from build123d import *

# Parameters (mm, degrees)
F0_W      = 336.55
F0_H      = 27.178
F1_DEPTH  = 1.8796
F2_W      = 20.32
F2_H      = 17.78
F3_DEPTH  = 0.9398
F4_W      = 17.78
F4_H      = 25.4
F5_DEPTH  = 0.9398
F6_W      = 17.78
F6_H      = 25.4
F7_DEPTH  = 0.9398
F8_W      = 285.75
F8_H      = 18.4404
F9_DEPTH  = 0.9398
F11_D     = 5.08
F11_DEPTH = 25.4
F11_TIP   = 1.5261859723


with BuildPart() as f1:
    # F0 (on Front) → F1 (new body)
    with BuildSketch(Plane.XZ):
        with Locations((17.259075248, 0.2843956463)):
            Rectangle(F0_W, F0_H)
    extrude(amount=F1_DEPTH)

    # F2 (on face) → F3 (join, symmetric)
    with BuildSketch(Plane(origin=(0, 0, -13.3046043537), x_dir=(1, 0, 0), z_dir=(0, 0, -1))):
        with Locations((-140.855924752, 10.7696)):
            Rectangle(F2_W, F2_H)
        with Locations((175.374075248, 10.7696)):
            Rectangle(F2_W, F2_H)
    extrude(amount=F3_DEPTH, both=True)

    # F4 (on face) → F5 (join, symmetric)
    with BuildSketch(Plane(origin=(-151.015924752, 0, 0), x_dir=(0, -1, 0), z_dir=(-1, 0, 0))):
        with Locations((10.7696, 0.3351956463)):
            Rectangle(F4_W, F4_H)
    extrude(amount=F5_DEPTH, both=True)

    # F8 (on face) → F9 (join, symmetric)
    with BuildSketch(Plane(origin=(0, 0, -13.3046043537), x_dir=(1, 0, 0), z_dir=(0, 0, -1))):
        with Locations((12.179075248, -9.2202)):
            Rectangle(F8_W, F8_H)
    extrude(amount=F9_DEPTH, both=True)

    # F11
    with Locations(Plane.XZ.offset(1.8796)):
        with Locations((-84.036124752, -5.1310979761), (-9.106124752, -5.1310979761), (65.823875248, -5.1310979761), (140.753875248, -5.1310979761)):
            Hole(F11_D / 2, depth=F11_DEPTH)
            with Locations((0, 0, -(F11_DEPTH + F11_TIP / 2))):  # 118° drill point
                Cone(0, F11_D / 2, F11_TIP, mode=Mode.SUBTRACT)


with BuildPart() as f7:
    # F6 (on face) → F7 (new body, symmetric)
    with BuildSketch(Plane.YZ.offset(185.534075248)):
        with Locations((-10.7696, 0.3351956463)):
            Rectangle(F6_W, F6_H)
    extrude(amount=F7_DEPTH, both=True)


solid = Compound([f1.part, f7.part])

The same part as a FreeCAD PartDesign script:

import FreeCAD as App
import Part
import Sketcher
Q = App.Units.Quantity


def add_polygon(sketch, points):
    """Adds a closed chain of lines whose ends are joined by coincident constraints."""
    first, n = sketch.GeometryCount, len(points)
    for a, b in zip(points, points[1:] + points[:1]):
        sketch.addGeometry(Part.LineSegment(App.Vector(*a, 0), App.Vector(*b, 0)), False)
    for i in range(n):
        sketch.addConstraint(Sketcher.Constraint("Coincident", first + i, 2, first + (i + 1) % n, 1))

doc = App.newDocument("Part")
body = doc.addObject("PartDesign::Body", "Body")

sketch1 = body.newObject("Sketcher::SketchObject", "Sketch")
sketch1.AttachmentSupport = (doc.getObject("XZ_Plane"), [""])
sketch1.MapMode = "FlatFace"
add_polygon(sketch1, [(-151, 14), (-151, -13), (186, -13), (186, 14)])
sketch1.addConstraint(Sketcher.Constraint("Vertical", 0))
sketch1.addConstraint(Sketcher.Constraint("Horizontal", 1))
sketch1.addConstraint(Sketcher.Constraint("Vertical", 2))
sketch1.addConstraint(Sketcher.Constraint("Horizontal", 3))
sketch1.addConstraint(Sketcher.Constraint("DistanceX", 1, 1, 1, 2, Q("13.25 in")))
sketch1.addConstraint(Sketcher.Constraint("DistanceY", 0, 2, 0, 1, Q("1.07 in")))
sketch1.addConstraint(Sketcher.Constraint("DistanceX", 0, 2, -1, 1, Q("151.015925 mm")))
sketch1.addConstraint(Sketcher.Constraint("DistanceY", 0, 2, -1, 1, Q("13.304604 mm")))
pad1 = body.newObject("PartDesign::Pad", "Pad")
pad1.Profile = sketch1
pad1.Length = Q("0.074 in")

sketch2 = body.newObject("Sketcher::SketchObject", "Sketch001")
sketch2.AttachmentSupport = (doc.getObject("XY_Plane"), [""])
sketch2.MapMode = "FlatFace"
sketch2.AttachmentOffset = App.Placement(App.Vector(0, 0, -13.304604), App.Rotation())
add_polygon(sketch2, [(-151, -20), (-151, -2), (-131, -2), (-131, -20)])
add_polygon(sketch2, [(165, -20), (165, -2), (186, -2), (186, -20)])
sketch2.addConstraint(Sketcher.Constraint("Vertical", 0))
sketch2.addConstraint(Sketcher.Constraint("Horizontal", 1))
sketch2.addConstraint(Sketcher.Constraint("Vertical", 2))
sketch2.addConstraint(Sketcher.Constraint("Horizontal", 3))
sketch2.addConstraint(Sketcher.Constraint("Vertical", 4))
sketch2.addConstraint(Sketcher.Constraint("Horizontal", 5))
sketch2.addConstraint(Sketcher.Constraint("Vertical", 6))
sketch2.addConstraint(Sketcher.Constraint("Horizontal", 7))
sketch2.addConstraint(Sketcher.Constraint("Horizontal", 1, 2, 4, 2))
sketch2.addConstraint(Sketcher.Constraint("Horizontal", 3, 2, 6, 2))
sketch2.addConstraint(Sketcher.Constraint("Equal", 3, 5))
sketch2.addConstraint(Sketcher.Constraint("DistanceX", 1, 1, 1, 2, Q("0.8 in")))
sketch2.addConstraint(Sketcher.Constraint("DistanceY", 0, 1, 0, 2, Q("0.7 in")))
sketch2.addConstraint(Sketcher.Constraint("DistanceX", 1, 2, 4, 2, Q("11.65 in")))
sketch2.addConstraint(Sketcher.Constraint("DistanceY", 0, 2, -1, 1, Q("0.074 in")))
sketch2.addConstraint(Sketcher.Constraint("DistanceX", 0, 2, -1, 1, Q("151.015925 mm")))
pad2 = body.newObject("PartDesign::Pad", "Pad001")
pad2.Profile = sketch2
pad2.Length = Q("0.074 in")
pad2.Midplane = True

sketch3 = body.newObject("Sketcher::SketchObject", "Sketch002")
sketch3.AttachmentSupport = (doc.getObject("YZ_Plane"), [""])
sketch3.MapMode = "FlatFace"
sketch3.AttachmentOffset = App.Placement(App.Vector(0, 0, -151.015925), App.Rotation())
add_polygon(sketch3, [(-2, 13), (-2, -12), (-20, -12), (-20, 13)])
sketch3.addConstraint(Sketcher.Constraint("Vertical", 0))
sketch3.addConstraint(Sketcher.Constraint("Horizontal", 1))
sketch3.addConstraint(Sketcher.Constraint("Vertical", 2))
sketch3.addConstraint(Sketcher.Constraint("Horizontal", 3))
sketch3.addConstraint(Sketcher.Constraint("DistanceY", 0, 2, 0, 1, Q("1 in")))
sketch3.addConstraint(Sketcher.Constraint("DistanceX", 1, 2, 1, 1, Q("0.7 in")))
sketch3.addConstraint(Sketcher.Constraint("DistanceX", 0, 2, -1, 1, Q("0.074 in")))
sketch3.addConstraint(Sketcher.Constraint("DistanceY", 0, 2, -1, 1, Q("12.364804 mm")))
pad3 = body.newObject("PartDesign::Pad", "Pad002")
pad3.Profile = sketch3
pad3.Length = Q("0.074 in")
pad3.Midplane = True

sketch4 = body.newObject("Sketcher::SketchObject", "Sketch003")
sketch4.AttachmentSupport = (doc.getObject("XY_Plane"), [""])
sketch4.MapMode = "FlatFace"
sketch4.AttachmentOffset = App.Placement(App.Vector(0, 0, -13.304604), App.Rotation())
add_polygon(sketch4, [(-131, 0), (-131, 18), (155, 18), (155, 0)])
sketch4.addConstraint(Sketcher.Constraint("Vertical", 0))
sketch4.addConstraint(Sketcher.Constraint("Horizontal", 1))
sketch4.addConstraint(Sketcher.Constraint("Vertical", 2))
sketch4.addConstraint(Sketcher.Constraint("Horizontal", 3))
sketch4.addConstraint(Sketcher.Constraint("PointOnObject", 2, 2, -1))
sketch4.addConstraint(Sketcher.Constraint("DistanceX", 1, 1, 1, 2, Q("11.25 in")))
sketch4.addConstraint(Sketcher.Constraint("DistanceY", 0, 1, 0, 2, Q("0.726 in")))
sketch4.addConstraint(Sketcher.Constraint("DistanceX", 0, 2, -1, 1, Q("130.695925 mm")))
pad4 = body.newObject("PartDesign::Pad", "Pad003")
pad4.Profile = sketch4
pad4.Length = Q("0.074 in")
pad4.Midplane = True

sketch5 = body.newObject("Sketcher::SketchObject", "Sketch004")
sketch5.AttachmentSupport = (doc.getObject("XZ_Plane"), [""])
sketch5.MapMode = "FlatFace"
sketch5.AttachmentOffset = App.Placement(App.Vector(0, 0, 0.074 * 25.4), App.Rotation())
sketch5.addGeometry(Part.Circle(App.Vector(-84, -5.1, 0), App.Vector(0, 0, 1), 2.5), False)
sketch5.addGeometry(Part.Circle(App.Vector(-9.1, -5.1, 0), App.Vector(0, 0, 1), 2.5), False)
sketch5.addGeometry(Part.Circle(App.Vector(65.8, -5.1, 0), App.Vector(0, 0, 1), 2.5), False)
sketch5.addGeometry(Part.Circle(App.Vector(140.8, -5.1, 0), App.Vector(0, 0, 1), 2.5), False)
sketch5.addConstraint(Sketcher.Constraint("Equal", 0, 1))
sketch5.addConstraint(Sketcher.Constraint("Equal", 1, 2))
sketch5.addConstraint(Sketcher.Constraint("Equal", 2, 3))
sketch5.addConstraint(Sketcher.Constraint("Horizontal", 0, 3, 1, 3))
sketch5.addConstraint(Sketcher.Constraint("Horizontal", 1, 3, 2, 3))
sketch5.addConstraint(Sketcher.Constraint("Horizontal", 2, 3, 3, 3))
sketch5.addConstraint(Sketcher.Constraint("Diameter", 0, Q("0.2 in")))
sketch5.addConstraint(Sketcher.Constraint("DistanceX", 0, 3, 2, 3, Q("5.9 in")))
sketch5.addConstraint(Sketcher.Constraint("DistanceX", 1, 3, 3, 3, Q("5.9 in")))
sketch5.addConstraint(Sketcher.Constraint("DistanceX", 0, 3, 1, 3, Q("2.95 in")))
sketch5.addConstraint(Sketcher.Constraint("DistanceX", 0, 3, -1, 1, Q("84.036125 mm")))
sketch5.addConstraint(Sketcher.Constraint("DistanceY", 0, 3, -1, 1, Q("5.131098 mm")))
doc.recompute()
hole = body.newObject("PartDesign::Hole", "Hole")
hole.Profile = sketch5
hole.ThreadType = "None"
hole.Diameter = Q("0.2 in")
hole.DepthType = "Dimension"
hole.Depth = Q("1 in")
hole.DrillPoint = "Angled"
hole.DrillPointAngle = 118
body2 = doc.addObject("PartDesign::Body", "Body001")

sketch6 = body2.newObject("Sketcher::SketchObject", "Sketch005")
sketch6.AttachmentSupport = (doc.getObject("YZ_Plane001"), [""])
sketch6.MapMode = "FlatFace"
sketch6.AttachmentOffset = App.Placement(App.Vector(0, 0, 185.534075), App.Rotation())
add_polygon(sketch6, [(-20, 13), (-20, -12), (-2, -12), (-2, 13)])
sketch6.addConstraint(Sketcher.Constraint("Vertical", 0))
sketch6.addConstraint(Sketcher.Constraint("Horizontal", 1))
sketch6.addConstraint(Sketcher.Constraint("Vertical", 2))
sketch6.addConstraint(Sketcher.Constraint("Horizontal", 3))
sketch6.addConstraint(Sketcher.Constraint("DistanceY", 0, 2, 0, 1, Q("1 in")))
sketch6.addConstraint(Sketcher.Constraint("DistanceX", 1, 1, 1, 2, Q("0.7 in")))
sketch6.addConstraint(Sketcher.Constraint("DistanceX", 0, 2, -1, 1, Q("0.774 in")))
sketch6.addConstraint(Sketcher.Constraint("DistanceY", 0, 2, -1, 1, Q("12.364804 mm")))
pad5 = body2.newObject("PartDesign::Pad", "Pad004")
pad5.Profile = sketch6
pad5.Length = Q("0.074 in")
pad5.Midplane = True

doc.recompute()
